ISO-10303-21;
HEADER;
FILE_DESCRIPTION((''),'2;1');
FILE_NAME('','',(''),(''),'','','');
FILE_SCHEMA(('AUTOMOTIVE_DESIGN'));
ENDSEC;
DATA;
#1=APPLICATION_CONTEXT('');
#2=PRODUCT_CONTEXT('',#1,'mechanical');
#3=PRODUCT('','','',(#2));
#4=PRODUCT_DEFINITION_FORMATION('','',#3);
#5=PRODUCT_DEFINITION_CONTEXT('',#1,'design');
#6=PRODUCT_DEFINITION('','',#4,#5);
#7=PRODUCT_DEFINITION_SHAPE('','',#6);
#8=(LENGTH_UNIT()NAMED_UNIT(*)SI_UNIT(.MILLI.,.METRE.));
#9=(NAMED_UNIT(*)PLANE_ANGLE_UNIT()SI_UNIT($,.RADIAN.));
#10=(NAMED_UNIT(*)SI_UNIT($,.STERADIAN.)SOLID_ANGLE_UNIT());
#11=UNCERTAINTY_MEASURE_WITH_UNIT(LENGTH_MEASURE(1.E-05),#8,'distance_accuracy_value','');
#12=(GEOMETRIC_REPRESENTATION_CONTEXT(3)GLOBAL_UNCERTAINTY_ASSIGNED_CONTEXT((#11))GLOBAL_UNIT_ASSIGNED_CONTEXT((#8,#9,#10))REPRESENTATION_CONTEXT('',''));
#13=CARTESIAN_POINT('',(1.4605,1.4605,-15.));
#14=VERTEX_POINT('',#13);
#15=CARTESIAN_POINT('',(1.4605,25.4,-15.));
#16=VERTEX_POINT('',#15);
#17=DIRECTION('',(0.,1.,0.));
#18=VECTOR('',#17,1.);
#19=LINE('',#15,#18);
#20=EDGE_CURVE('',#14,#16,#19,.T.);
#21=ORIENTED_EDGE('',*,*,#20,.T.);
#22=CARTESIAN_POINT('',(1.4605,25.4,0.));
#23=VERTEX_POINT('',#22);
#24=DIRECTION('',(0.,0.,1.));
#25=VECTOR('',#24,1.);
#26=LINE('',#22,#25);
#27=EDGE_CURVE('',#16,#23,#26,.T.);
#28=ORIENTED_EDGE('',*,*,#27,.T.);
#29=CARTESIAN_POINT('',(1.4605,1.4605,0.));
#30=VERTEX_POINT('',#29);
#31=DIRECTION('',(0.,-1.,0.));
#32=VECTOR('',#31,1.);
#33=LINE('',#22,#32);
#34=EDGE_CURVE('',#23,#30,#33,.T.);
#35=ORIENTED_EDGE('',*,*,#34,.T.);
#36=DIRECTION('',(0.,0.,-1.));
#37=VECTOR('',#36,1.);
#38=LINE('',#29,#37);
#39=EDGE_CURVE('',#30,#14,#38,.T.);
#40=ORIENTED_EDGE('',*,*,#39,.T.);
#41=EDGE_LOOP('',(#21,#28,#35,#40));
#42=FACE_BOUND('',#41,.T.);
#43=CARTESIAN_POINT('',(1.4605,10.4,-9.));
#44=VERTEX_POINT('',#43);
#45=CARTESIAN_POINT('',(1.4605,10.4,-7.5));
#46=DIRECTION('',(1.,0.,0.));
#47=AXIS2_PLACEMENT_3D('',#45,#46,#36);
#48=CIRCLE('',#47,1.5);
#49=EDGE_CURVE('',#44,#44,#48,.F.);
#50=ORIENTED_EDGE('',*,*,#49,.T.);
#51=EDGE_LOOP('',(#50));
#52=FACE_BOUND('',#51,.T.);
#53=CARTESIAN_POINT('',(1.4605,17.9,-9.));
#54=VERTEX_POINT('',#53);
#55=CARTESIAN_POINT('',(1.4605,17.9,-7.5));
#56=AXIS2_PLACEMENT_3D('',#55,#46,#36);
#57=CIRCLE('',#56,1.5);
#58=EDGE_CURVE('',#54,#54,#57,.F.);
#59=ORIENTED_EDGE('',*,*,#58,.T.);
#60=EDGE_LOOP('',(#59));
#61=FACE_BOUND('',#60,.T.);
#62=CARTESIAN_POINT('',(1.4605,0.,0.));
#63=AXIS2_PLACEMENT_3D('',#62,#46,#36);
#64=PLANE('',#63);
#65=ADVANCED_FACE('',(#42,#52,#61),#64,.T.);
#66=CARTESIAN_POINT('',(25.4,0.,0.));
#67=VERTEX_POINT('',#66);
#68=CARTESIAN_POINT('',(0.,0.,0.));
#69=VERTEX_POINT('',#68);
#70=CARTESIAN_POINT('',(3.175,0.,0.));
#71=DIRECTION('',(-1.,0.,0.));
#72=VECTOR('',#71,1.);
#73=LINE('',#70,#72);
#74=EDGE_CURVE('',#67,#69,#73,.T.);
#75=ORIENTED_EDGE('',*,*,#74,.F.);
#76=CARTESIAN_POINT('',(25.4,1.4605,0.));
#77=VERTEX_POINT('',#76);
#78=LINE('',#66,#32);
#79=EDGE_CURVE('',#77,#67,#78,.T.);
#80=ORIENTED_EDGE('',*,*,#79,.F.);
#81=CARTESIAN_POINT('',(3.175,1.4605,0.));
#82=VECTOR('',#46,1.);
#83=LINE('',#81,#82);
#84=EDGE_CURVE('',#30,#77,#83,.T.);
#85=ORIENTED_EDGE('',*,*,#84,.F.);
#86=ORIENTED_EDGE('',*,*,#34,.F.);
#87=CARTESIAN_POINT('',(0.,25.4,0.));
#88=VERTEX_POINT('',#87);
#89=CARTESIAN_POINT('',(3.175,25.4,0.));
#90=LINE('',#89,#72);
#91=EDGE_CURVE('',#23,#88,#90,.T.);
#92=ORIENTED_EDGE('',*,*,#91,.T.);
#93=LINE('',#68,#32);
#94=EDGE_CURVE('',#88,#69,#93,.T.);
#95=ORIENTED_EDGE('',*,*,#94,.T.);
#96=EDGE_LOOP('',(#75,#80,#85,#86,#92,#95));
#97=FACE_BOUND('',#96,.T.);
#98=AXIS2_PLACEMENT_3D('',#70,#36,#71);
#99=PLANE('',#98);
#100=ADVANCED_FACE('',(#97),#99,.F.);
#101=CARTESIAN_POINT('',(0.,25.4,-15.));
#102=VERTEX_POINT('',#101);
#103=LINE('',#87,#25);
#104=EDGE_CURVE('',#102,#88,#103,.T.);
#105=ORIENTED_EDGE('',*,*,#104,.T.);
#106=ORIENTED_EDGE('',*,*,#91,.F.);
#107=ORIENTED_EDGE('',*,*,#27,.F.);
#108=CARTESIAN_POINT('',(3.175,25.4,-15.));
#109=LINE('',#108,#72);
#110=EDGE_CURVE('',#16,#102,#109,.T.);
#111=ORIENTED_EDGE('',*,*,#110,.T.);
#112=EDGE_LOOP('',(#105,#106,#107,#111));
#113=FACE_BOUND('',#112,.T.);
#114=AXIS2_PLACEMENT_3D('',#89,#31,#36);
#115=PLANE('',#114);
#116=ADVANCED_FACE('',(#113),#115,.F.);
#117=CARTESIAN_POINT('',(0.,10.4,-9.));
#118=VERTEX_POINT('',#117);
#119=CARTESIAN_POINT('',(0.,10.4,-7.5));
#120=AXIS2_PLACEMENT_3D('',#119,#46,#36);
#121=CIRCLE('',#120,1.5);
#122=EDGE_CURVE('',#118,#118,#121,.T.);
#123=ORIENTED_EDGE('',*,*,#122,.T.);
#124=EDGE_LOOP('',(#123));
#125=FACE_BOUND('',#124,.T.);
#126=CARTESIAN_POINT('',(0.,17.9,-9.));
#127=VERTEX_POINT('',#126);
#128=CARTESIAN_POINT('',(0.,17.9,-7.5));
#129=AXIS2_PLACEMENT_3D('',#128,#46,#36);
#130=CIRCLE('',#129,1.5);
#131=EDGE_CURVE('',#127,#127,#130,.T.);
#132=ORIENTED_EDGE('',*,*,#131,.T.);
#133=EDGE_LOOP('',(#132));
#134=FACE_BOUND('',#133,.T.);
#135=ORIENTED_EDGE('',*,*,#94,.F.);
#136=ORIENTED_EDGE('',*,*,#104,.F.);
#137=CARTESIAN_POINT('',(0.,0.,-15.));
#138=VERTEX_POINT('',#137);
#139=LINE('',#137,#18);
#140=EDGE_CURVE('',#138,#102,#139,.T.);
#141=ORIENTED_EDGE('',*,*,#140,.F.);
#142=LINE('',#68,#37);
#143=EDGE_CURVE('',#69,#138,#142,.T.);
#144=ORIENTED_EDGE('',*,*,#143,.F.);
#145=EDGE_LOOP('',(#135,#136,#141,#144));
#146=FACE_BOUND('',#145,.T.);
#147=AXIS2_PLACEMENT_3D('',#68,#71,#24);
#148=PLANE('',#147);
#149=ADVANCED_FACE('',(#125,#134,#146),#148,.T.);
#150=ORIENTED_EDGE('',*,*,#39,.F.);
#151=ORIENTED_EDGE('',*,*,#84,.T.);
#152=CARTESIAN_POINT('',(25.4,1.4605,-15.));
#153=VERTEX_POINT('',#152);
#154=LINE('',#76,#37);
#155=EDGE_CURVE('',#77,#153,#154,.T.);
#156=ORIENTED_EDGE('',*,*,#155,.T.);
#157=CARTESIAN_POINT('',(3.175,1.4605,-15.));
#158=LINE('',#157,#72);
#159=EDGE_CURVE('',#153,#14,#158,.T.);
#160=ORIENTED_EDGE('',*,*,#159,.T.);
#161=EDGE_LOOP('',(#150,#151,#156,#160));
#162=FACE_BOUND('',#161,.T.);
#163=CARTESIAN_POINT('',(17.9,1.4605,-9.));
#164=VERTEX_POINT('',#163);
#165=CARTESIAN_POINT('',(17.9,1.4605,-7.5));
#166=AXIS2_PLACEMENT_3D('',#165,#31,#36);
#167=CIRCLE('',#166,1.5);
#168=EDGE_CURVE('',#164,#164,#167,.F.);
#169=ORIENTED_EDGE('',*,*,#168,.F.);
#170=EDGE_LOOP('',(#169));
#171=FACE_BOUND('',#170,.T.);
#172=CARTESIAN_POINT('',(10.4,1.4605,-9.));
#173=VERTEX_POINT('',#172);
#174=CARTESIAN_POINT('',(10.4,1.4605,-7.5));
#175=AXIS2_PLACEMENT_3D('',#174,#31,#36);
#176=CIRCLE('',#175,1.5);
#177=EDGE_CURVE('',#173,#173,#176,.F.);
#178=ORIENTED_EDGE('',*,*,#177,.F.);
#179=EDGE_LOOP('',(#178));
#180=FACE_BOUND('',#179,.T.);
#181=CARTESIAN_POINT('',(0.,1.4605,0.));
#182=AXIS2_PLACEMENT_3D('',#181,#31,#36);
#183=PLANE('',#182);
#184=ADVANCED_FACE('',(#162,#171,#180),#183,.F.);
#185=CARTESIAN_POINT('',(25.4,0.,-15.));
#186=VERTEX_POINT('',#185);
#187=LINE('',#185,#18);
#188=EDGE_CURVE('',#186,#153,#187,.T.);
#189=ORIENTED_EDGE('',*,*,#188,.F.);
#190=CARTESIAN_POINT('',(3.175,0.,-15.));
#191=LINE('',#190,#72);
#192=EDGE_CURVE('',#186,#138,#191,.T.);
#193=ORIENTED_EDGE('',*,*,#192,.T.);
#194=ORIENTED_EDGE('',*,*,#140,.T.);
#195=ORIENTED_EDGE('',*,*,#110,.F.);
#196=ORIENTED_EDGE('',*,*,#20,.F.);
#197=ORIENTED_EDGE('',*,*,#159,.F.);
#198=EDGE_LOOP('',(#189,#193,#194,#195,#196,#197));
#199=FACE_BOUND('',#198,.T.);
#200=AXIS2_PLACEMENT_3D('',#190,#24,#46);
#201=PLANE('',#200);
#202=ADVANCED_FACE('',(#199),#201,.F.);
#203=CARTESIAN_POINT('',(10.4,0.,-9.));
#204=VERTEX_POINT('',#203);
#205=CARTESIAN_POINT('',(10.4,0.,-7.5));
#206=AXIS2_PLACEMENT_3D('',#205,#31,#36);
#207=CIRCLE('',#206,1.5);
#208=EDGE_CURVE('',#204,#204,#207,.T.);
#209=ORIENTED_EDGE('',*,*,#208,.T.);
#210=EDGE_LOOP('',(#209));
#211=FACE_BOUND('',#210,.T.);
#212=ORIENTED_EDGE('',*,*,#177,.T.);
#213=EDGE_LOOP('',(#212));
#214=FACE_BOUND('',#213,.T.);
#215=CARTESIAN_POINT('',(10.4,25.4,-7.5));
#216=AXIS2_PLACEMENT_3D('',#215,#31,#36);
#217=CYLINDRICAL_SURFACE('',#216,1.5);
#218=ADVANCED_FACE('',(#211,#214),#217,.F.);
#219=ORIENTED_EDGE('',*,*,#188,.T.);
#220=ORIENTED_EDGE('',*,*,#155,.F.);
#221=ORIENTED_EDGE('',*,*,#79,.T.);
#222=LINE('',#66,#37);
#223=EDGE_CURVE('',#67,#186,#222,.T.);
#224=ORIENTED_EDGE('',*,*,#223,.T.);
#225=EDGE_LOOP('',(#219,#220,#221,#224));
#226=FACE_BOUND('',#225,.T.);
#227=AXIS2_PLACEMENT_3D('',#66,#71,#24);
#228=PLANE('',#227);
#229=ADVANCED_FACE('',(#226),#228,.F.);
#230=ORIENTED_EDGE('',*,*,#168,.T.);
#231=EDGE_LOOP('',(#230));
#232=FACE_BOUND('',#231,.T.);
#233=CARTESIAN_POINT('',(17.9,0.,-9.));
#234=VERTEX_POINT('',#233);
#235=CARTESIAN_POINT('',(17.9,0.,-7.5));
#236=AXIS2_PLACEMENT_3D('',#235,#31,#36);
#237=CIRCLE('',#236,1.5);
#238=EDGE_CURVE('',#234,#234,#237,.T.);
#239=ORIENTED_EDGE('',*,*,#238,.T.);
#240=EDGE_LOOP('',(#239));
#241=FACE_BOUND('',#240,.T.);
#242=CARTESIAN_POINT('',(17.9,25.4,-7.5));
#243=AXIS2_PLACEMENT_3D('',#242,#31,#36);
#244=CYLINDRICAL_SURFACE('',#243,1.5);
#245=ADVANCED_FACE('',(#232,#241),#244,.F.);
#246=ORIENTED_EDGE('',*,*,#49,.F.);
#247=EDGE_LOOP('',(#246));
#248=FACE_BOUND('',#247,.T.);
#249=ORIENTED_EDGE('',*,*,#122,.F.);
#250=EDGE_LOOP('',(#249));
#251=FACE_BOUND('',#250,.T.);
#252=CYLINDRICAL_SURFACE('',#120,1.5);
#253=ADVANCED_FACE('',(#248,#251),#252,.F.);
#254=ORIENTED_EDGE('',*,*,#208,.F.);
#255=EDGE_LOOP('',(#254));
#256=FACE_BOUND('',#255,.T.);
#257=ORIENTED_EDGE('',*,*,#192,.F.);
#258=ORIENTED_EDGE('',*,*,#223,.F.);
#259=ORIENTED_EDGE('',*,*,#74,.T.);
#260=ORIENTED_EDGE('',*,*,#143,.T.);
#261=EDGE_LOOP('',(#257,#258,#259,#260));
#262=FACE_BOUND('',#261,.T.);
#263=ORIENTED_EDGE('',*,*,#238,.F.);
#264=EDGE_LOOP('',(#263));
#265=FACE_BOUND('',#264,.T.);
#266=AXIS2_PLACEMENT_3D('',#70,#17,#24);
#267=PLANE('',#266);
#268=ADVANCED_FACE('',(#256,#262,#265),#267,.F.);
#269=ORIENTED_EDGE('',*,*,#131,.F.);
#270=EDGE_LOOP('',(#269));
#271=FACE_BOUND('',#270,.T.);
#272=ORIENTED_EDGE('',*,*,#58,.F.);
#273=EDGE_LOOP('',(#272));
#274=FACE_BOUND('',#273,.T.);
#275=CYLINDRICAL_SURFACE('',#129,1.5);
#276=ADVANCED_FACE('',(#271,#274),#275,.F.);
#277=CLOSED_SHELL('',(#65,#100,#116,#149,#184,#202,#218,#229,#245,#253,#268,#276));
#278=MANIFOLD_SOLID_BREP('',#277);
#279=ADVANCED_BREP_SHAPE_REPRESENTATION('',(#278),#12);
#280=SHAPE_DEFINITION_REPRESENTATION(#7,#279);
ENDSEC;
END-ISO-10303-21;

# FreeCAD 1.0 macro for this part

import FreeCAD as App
import Part
import Sketcher
Q = App.Units.Quantity


def add_polygon(sketch, points):
    """Adds a closed chain of lines whose ends are joined by coincident constraints."""
    first, n = sketch.GeometryCount, len(points)
    for a, b in zip(points, points[1:] + points[:1]):
        sketch.addGeometry(Part.LineSegment(App.Vector(*a, 0), App.Vector(*b, 0)), False)
    for i in range(n):
        sketch.addConstraint(Sketcher.Constraint("Coincident", first + i, 2, first + (i + 1) % n, 1))

doc = App.newDocument("Part")
params = doc.addObject("Spreadsheet::Sheet", "Params")
for row, (alias, value) in enumerate([
    ("sketch1_width", "1 in"),
    ("pad1_length", "0.125 in"),
    ("sketch2_width", "0.125 in"),
    ("pad2_length", "0.875 in"),
    ("sketch5_width", "0.875 in"),
    ("pocket3_length", "0.0675 in"),
    ("pocket4_length", "0.0675 in"),
], start=1):
    params.set(f"A{row}", alias)
    params.set(f"B{row}", "=" + value)
    params.setAlias(f"B{row}", alias)

body = doc.addObject("PartDesign::Body", "Body")

sketch1 = body.newObject("Sketcher::SketchObject", "Sketch")
sketch1.AttachmentSupport = (doc.getObject("YZ_Plane"), [""])
sketch1.MapMode = "FlatFace"
add_polygon(sketch1, [(25.4, 0), (0, 0), (0, -15), (25.4, -15)])
sketch1.addConstraint([
    Sketcher.Constraint("Horizontal", 0),
    Sketcher.Constraint("Vertical", 1),
    Sketcher.Constraint("Horizontal", 2),
    Sketcher.Constraint("Vertical", 3),
    Sketcher.Constraint("Coincident", 0, 2, -1, 1),
    Sketcher.Constraint("DistanceX", 0, 2, 0, 1, Q("1 in")),
    Sketcher.Constraint("DistanceY", 1, 2, 1, 1, Q("15 mm")),
])
sketch1.setExpression("Constraints[9]", "Params.sketch1_width")
pad1 = body.newObject("PartDesign::Pad", "Pad")
pad1.Profile = sketch1
pad1.setExpression("Length", "Params.pad1_length")

sketch2 = body.newObject("Sketcher::SketchObject", "Sketch001")
sketch2.AttachmentSupport = (doc.getObject("YZ_Plane"), [""])
sketch2.MapMode = "FlatFace"
sketch2.AttachmentOffset = App.Placement(App.Vector(0, 0, 0.125 * 25.4), App.Rotation())
add_polygon(sketch2, [(3.175, 0), (0, 0), (0, -15), (3.175, -15)])
sketch2.addConstraint([
    Sketcher.Constraint("Horizontal", 0),
    Sketcher.Constraint("Vertical", 1),
    Sketcher.Constraint("Horizontal", 2),
    Sketcher.Constraint("Vertical", 3),
    Sketcher.Constraint("Coincident", 0, 2, -1, 1),
    Sketcher.Constraint("DistanceX", 0, 2, 0, 1, Q("0.125 in")),
    Sketcher.Constraint("DistanceY", 1, 2, 1, 1, Q("15 mm")),
])
sketch2.setExpression("Constraints[9]", "Params.sketch2_width")
pad2 = body.newObject("PartDesign::Pad", "Pad001")
pad2.Profile = sketch2
pad2.setExpression("Length", "Params.pad2_length")

sketch3 = body.newObject("Sketcher::SketchObject", "Sketch002")
sketch3.AttachmentSupport = (doc.getObject("YZ_Plane"), [""])
sketch3.MapMode = "FlatFace"
sketch3.AttachmentOffset = App.Placement(App.Vector(0, 0, 0.125 * 25.4), App.Rotation())
sketch3.addGeometry([
    Part.Circle(App.Vector(17.9, -7.5, 0), App.Vector(0, 0, 1), 1.5),
    Part.Circle(App.Vector(10.4, -7.5, 0), App.Vector(0, 0, 1), 1.5),
], False)
sketch3.addConstraint([
    Sketcher.Constraint("Equal", 0, 1),
    Sketcher.Constraint("Horizontal", 0, 3, 1, 3),
    Sketcher.Constraint("Diameter", 0, Q("3 mm")),
    Sketcher.Constraint("DistanceX", -1, 1, 0, 3, Q("17.9 mm")),
    Sketcher.Constraint("DistanceY", 0, 3, -1, 1, Q("7.5 mm")),
    Sketcher.Constraint("DistanceX", -1, 1, 1, 3, Q("10.4 mm")),
])
pocket1 = body.newObject("PartDesign::Pocket", "Pocket")
pocket1.Profile = sketch3
pocket1.Type = "ThroughAll"

sketch4 = body.newObject("Sketcher::SketchObject", "Sketch003")
sketch4.AttachmentSupport = (doc.getObject("XZ_Plane"), [""])
sketch4.MapMode = "FlatFace"
sketch4.addGeometry([
    Part.Circle(App.Vector(10.4, -7.5, 0), App.Vector(0, 0, 1), 1.5),
    Part.Circle(App.Vector(17.9, -7.5, 0), App.Vector(0, 0, 1), 1.5),
], False)
sketch4.addConstraint([
    Sketcher.Constraint("Equal", 0, 1),
    Sketcher.Constraint("Horizontal", 0, 3, 1, 3),
    Sketcher.Constraint("Diameter", 0, Q("3 mm")),
    Sketcher.Constraint("DistanceX", -1, 1, 0, 3, Q("10.4 mm")),
    Sketcher.Constraint("DistanceY", 0, 3, -1, 1, Q("7.5 mm")),
    Sketcher.Constraint("DistanceX", -1, 1, 1, 3, Q("17.9 mm")),
])
pocket2 = body.newObject("PartDesign::Pocket", "Pocket001")
pocket2.Profile = sketch4
pocket2.Type = "ThroughAll"

sketch5 = body.newObject("Sketcher::SketchObject", "Sketch004")
sketch5.AttachmentSupport = (doc.getObject("XZ_Plane"), [""])
sketch5.MapMode = "FlatFace"
sketch5.AttachmentOffset = App.Placement(App.Vector(0, 0, -0.125 * 25.4), App.Rotation())
add_polygon(sketch5, [(3.175, -15), (3.175, 0), (25.4, 0), (25.4, -15)])
sketch5.addConstraint([
    Sketcher.Constraint("Vertical", 0),
    Sketcher.Constraint("Horizontal", 1),
    Sketcher.Constraint("Vertical", 2),
    Sketcher.Constraint("Horizontal", 3),
    Sketcher.Constraint("PointOnObject", 0, 2, -1),
    Sketcher.Constraint("DistanceX", -1, 1, 1, 2, Q("1 in")),
    Sketcher.Constraint("DistanceX", 1, 1, 1, 2, Q("0.875 in")),
    Sketcher.Constraint("DistanceY", 0, 1, 0, 2, Q("15 mm")),
])
sketch5.setExpression("Constraints[10]", "Params.sketch5_width")
pocket3 = body.newObject("PartDesign::Pocket", "Pocket002")
pocket3.Profile = sketch5
pocket3.setExpression("Length", "Params.pocket3_length")
pocket3.Reversed = True

sketch6 = body.newObject("Sketcher::SketchObject", "Sketch005")
sketch6.AttachmentSupport = (doc.getObject("YZ_Plane"), [""])
sketch6.MapMode = "FlatFace"
sketch6.AttachmentOffset = App.Placement(App.Vector(0, 0, 0.125 * 25.4), App.Rotation())
add_polygon(sketch6, [(25.4, 0), (1.4605, 0), (1.4605, -15), (25.4, -15)])
sketch6.addConstraint([
    Sketcher.Constraint("Horizontal", 0),
    Sketcher.Constraint("Vertical", 1),
    Sketcher.Constraint("Horizontal", 2),
    Sketcher.Constraint("Vertical", 3),
    Sketcher.Constraint("PointOnObject", 0, 2, -1),
    Sketcher.Constraint("DistanceX", -1, 1, 2, 2, Q("1 in")),
    Sketcher.Constraint("DistanceX", 0, 2, 0, 1, Q("0.9425 in")),
    Sketcher.Constraint("DistanceY", 1, 2, 1, 1, Q("15 mm")),
])
pocket4 = body.newObject("PartDesign::Pocket", "Pocket003")
pocket4.Profile = sketch6
pocket4.setExpression("Length", "Params.pocket4_length")

doc.recompute()
